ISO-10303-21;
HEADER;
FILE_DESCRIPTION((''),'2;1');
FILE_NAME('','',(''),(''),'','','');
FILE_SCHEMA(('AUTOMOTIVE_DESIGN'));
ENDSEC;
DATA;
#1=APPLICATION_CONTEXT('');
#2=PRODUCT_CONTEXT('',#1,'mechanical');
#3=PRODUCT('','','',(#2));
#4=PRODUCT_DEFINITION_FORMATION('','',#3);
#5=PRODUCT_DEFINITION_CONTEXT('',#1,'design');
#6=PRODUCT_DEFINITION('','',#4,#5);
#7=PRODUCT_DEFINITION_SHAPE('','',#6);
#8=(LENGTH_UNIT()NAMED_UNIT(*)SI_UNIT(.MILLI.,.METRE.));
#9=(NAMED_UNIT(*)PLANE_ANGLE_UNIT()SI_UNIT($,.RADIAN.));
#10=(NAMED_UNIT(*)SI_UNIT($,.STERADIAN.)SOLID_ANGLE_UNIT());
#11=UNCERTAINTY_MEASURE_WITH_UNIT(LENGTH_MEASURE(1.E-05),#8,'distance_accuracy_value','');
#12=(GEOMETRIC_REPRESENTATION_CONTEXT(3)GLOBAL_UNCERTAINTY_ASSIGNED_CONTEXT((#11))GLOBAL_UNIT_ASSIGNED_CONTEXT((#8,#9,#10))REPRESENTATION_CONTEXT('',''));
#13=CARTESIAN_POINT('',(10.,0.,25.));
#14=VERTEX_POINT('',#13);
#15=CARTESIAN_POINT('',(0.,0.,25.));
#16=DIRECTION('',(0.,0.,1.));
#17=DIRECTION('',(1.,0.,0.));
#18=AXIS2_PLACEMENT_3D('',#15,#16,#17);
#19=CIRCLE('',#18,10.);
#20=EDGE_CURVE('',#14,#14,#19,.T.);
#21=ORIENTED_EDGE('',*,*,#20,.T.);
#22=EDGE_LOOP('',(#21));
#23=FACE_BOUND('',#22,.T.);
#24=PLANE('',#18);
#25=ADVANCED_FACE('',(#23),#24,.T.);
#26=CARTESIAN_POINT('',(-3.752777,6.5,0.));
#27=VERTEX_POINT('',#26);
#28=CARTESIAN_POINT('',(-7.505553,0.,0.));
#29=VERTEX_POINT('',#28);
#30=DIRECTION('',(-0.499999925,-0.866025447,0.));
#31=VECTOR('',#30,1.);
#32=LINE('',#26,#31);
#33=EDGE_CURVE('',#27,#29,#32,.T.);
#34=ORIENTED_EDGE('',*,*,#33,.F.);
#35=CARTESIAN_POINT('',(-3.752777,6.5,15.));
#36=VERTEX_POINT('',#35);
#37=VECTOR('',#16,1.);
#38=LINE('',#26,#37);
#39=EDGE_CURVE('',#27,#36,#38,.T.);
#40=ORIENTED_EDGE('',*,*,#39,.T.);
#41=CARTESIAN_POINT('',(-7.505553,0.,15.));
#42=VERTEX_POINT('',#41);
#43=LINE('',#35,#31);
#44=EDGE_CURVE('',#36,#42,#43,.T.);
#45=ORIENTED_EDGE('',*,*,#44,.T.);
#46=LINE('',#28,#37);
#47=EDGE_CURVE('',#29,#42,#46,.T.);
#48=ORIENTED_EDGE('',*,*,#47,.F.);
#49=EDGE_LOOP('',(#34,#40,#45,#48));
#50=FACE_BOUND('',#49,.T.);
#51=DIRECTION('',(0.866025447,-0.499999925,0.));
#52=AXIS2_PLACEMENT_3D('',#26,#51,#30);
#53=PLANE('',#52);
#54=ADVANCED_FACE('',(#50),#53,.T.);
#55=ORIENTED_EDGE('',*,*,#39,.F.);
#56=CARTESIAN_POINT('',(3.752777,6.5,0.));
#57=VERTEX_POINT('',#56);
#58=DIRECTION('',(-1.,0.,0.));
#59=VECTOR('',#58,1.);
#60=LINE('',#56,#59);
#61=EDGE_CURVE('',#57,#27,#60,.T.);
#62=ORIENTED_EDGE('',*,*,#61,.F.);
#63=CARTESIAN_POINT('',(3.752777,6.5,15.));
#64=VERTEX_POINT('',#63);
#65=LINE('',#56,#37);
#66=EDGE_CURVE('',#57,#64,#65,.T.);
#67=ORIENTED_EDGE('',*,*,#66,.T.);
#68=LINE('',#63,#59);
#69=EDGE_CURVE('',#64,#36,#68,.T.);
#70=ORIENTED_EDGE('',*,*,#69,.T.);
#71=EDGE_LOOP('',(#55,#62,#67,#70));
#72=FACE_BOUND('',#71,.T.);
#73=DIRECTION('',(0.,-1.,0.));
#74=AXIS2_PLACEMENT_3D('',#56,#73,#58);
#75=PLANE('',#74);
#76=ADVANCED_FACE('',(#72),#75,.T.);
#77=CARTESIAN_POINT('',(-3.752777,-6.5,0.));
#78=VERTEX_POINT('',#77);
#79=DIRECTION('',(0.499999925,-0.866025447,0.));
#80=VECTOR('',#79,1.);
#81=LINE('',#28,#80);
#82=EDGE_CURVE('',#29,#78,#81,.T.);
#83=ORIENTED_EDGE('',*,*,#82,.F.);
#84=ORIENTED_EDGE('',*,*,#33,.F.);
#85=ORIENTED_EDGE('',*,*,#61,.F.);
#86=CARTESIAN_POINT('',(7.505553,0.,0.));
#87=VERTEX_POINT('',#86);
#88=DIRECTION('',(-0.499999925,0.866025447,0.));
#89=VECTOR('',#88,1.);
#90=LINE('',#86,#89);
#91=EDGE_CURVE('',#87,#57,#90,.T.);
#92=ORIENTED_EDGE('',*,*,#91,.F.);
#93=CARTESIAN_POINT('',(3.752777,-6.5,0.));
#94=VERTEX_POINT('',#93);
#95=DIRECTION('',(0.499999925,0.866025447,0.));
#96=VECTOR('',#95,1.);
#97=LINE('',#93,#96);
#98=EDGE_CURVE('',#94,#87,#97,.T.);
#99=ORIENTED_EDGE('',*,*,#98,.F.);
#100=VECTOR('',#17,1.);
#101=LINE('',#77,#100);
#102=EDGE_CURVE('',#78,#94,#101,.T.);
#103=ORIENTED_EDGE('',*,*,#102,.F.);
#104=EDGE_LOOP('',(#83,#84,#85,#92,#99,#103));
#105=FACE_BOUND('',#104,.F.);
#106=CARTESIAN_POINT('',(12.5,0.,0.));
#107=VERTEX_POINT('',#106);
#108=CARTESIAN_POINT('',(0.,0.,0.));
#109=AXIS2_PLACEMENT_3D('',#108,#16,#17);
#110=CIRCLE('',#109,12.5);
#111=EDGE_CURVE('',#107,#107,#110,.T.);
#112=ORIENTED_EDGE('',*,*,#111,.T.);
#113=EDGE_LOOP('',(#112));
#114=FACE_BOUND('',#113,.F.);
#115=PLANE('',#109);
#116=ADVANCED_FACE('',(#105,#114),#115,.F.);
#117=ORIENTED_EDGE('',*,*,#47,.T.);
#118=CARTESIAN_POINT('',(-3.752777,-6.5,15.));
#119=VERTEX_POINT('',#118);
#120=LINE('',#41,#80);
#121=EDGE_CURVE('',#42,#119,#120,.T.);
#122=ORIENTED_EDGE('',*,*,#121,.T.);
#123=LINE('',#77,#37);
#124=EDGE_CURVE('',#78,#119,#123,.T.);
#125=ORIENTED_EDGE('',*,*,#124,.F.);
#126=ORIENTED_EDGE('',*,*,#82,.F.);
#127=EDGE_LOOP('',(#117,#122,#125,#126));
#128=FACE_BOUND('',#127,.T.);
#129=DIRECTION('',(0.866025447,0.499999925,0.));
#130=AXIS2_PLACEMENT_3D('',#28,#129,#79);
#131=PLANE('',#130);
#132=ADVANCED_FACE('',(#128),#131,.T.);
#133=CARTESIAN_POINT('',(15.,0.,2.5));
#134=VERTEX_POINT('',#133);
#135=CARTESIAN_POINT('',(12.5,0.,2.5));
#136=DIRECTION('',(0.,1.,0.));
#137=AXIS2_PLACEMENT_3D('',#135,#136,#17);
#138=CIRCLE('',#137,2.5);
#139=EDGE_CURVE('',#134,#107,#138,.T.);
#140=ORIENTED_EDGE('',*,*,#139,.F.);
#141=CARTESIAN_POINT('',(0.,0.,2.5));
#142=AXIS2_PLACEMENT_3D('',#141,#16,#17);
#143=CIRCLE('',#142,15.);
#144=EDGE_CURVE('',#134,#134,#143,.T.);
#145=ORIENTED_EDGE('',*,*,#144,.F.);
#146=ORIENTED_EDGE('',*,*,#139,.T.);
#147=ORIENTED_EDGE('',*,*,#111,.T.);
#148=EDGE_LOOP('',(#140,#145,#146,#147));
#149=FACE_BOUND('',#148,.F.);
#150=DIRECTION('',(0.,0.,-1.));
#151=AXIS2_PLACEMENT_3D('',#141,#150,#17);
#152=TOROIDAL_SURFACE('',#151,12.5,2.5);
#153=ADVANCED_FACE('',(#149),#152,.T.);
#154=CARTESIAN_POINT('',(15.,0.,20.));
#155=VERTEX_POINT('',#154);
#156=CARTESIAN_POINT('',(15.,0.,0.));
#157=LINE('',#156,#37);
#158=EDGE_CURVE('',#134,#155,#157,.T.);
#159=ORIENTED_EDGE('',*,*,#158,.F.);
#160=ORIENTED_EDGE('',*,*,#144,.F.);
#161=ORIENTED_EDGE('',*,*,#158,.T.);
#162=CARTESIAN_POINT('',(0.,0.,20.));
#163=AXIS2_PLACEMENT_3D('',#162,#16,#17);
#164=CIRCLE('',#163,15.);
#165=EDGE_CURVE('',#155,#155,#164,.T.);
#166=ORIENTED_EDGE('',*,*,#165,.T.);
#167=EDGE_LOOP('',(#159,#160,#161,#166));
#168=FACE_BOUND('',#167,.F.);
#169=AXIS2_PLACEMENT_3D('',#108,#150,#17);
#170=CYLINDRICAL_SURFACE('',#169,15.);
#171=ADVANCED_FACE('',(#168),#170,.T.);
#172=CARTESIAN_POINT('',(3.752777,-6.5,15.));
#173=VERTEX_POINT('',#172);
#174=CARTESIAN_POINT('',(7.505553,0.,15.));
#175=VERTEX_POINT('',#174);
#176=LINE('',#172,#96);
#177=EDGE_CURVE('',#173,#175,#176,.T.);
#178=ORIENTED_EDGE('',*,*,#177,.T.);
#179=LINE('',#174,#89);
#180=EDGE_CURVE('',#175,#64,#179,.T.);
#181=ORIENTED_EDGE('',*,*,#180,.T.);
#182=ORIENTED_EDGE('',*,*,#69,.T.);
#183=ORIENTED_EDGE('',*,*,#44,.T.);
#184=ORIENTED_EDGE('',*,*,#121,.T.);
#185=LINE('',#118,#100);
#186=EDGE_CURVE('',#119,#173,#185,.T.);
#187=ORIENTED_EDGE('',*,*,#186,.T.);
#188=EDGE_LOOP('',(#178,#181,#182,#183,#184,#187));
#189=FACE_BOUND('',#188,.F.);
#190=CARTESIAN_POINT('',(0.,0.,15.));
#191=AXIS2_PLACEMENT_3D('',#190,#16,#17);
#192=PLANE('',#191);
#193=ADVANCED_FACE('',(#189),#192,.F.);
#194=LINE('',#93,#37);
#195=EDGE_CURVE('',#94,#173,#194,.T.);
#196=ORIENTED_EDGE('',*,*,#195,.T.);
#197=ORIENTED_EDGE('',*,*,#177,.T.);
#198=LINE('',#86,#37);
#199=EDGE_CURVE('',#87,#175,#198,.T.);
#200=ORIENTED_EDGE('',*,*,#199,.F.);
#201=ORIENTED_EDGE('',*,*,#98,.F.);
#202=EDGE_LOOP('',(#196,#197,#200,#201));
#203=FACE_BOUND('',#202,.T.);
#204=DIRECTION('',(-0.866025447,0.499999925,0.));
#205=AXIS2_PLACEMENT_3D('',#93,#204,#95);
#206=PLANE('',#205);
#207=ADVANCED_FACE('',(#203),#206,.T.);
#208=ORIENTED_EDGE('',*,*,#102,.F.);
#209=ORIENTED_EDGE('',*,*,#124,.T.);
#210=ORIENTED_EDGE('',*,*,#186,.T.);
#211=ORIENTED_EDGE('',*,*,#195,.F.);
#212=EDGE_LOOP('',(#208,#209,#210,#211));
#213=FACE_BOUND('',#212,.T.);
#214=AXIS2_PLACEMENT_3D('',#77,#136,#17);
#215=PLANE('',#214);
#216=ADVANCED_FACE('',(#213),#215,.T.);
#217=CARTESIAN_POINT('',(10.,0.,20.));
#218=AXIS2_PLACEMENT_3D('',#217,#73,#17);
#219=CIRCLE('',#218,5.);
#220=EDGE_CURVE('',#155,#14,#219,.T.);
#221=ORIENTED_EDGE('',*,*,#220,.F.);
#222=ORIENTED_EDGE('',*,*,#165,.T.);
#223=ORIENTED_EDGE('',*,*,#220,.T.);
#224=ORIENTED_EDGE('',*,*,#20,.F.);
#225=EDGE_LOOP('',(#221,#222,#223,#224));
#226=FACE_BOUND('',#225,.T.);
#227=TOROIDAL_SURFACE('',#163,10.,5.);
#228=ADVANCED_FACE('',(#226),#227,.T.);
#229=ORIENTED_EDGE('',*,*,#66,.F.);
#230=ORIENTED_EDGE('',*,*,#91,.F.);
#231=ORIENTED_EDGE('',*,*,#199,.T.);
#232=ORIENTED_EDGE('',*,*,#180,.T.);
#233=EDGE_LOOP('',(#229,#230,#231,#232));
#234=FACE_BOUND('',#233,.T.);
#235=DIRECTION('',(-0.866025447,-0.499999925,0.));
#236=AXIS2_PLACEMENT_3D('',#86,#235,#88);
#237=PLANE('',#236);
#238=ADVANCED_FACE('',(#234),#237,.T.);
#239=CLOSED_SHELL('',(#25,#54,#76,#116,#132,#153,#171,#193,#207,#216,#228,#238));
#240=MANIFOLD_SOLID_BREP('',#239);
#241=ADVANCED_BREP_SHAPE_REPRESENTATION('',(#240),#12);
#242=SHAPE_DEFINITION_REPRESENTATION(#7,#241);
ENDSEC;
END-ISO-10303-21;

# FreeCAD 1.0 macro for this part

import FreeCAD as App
import Part
import Sketcher
from FreeCAD import Vector
Q = App.Units.Quantity


def edges_at(feature, points):
    """Names of the edges that pass closest to the given points."""
    edges = feature.Shape.Edges
    near = lambda p: min(range(len(edges)), key=lambda i: edges[i].distToShape(Part.Vertex(*p))[0])
    return sorted({f"Edge{near(p) + 1}" for p in points})


def add_polygon(sketch, points):
    """Adds a closed chain of lines whose ends are joined by coincident constraints."""
    first, n = sketch.GeometryCount, len(points)
    for a, b in zip(points, points[1:] + points[:1]):
        sketch.addGeometry(Part.LineSegment(App.Vector(*a, 0), App.Vector(*b, 0)), False)
    for i in range(n):
        sketch.addConstraint(Sketcher.Constraint("Coincident", first + i, 2, first + (i + 1) % n, 1))

doc = App.newDocument("Part")
body = doc.addObject("PartDesign::Body", "Body")

# Sketch on XY plane
sketch1 = doc.addObject("Sketcher::SketchObject", "Sketch")
body.addObject(sketch1)
sketch1.AttachmentSupport = (doc.XY_Plane, [""])
sketch1.MapMode = "FlatFace"
sketch1.addGeometry(Part.Circle(Vector(0, 0, 0), Vector(0, 0, 1), 15), False)
sketch1.addConstraint([
    Sketcher.Constraint("Coincident", 0, 3, -1, 1),
    Sketcher.Constraint("Diameter", 0, Q("30 mm")),
])
pad1 = doc.addObject("PartDesign::Pad", "Pad")
body.addObject(pad1)
pad1.Profile = sketch1
pad1.Length = 25
doc.recompute()

fillet = doc.addObject("PartDesign::Fillet", "Fillet")
body.addObject(fillet)
fillet.Base = (pad1, edges_at(pad1, [(-15, 0, 25)]))
fillet.Radius = 5
doc.recompute()

fillet2 = doc.addObject("PartDesign::Fillet", "Fillet001")
body.addObject(fillet2)
fillet2.Base = (fillet, edges_at(fillet, [(-15, 0, 0)]))
fillet2.Radius = 2.5

# Sketch on XY plane
sketch2 = doc.addObject("Sketcher::SketchObject", "Sketch001")
body.addObject(sketch2)
sketch2.AttachmentSupport = (doc.XY_Plane, [""])
sketch2.MapMode = "FlatFace"
add_polygon(sketch2, [(3.752777, 6.5), (-3.752777, 6.5), (-7.505553, 0), (-3.752777, -6.5), (3.752777, -6.5), (7.505553, 0)])  # lines 0-5
sketch2.addConstraint([
    Sketcher.Constraint("Horizontal", 0),
    Sketcher.Constraint("Horizontal", 3),
    Sketcher.Constraint("Symmetric", 0, 2, 3, 2, -1, 1),
    Sketcher.Constraint("Symmetric", 1, 2, 4, 2, -1, 1),
    Sketcher.Constraint("PointOnObject", 1, 2, -1),
    Sketcher.Constraint("Parallel", 2, 5),
    Sketcher.Constraint("Vertical", 0, 2, 2, 2),
    Sketcher.Constraint("Angle", 1, Q("-119.999995 deg")),
    Sketcher.Constraint("DistanceY", 2, 2, 0, 2, Q("13 mm")),
    Sketcher.Constraint("DistanceX", 0, 2, 0, 1, Q("7.505554 mm")),
])
pocket1 = doc.addObject("PartDesign::Pocket", "Pocket")
body.addObject(pocket1)
pocket1.Profile = sketch2
pocket1.Length = 15
pocket1.Reversed = True

doc.recompute()
